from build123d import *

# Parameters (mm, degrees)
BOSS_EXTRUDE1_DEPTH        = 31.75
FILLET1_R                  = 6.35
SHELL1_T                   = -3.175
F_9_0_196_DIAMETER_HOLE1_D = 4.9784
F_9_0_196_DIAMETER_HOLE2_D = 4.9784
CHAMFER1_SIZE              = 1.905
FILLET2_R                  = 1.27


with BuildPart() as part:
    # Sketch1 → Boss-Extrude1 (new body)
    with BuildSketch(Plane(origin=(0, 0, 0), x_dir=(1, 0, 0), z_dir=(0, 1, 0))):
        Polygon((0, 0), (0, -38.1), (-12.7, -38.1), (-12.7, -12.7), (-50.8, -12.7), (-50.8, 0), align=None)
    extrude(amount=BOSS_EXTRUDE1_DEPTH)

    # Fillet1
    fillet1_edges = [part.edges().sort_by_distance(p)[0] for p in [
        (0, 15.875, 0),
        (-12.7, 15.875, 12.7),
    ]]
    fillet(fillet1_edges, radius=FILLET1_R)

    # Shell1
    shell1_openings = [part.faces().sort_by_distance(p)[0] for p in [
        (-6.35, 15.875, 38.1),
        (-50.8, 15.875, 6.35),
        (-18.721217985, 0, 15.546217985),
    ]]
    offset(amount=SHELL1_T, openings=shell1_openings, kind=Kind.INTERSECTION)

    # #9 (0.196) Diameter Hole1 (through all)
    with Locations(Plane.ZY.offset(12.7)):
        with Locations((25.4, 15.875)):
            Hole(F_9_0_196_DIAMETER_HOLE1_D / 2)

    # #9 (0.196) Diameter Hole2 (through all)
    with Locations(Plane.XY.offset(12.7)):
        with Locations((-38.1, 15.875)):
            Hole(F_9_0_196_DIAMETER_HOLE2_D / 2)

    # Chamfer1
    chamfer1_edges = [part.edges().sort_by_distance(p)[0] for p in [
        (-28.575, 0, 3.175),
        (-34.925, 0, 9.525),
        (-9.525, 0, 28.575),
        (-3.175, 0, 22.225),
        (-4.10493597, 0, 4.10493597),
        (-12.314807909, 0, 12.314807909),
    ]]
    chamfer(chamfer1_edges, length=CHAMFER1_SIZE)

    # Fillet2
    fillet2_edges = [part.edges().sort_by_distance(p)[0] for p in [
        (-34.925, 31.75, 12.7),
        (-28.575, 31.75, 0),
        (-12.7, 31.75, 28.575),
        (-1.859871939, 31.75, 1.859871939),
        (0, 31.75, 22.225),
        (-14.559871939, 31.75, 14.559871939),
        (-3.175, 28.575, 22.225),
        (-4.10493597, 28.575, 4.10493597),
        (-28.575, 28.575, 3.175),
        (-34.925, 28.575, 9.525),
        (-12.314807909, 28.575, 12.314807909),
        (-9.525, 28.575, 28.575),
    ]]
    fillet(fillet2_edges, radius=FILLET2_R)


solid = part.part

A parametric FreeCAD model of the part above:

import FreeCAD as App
import Part
import Sketcher

V = App.Vector
Q = App.Units.Quantity


def edges_at(feature, points):
    """Names of the edges that pass closest to the given points."""
    edges = feature.Shape.Edges
    near = lambda p: min(range(len(edges)), key=lambda i: edges[i].distToShape(Part.Vertex(*p))[0])
    return sorted({f"Edge{near(p) + 1}" for p in points})


def faces_at(feature, points):
    """Names of the faces that lie closest to the given points."""
    faces = feature.Shape.Faces
    near = lambda p: min(range(len(faces)), key=lambda i: faces[i].distToShape(Part.Vertex(*p))[0])
    return sorted({f"Face{near(p) + 1}" for p in points})

doc = App.newDocument("Part")
body = doc.addObject("PartDesign::Body", "Body")

sketch1 = body.newObject("Sketcher::SketchObject", "Sketch")
sketch1.AttachmentSupport = (doc.getObject("XZ_Plane"), [""])
sketch1.MapMode = "FlatFace"
sketch1.addGeometry([
    Part.LineSegment(V(0, 38.1, 0), V(0, 0, 0)),
    Part.LineSegment(V(0, 0, 0), V(-50.8, 0, 0)),
    Part.LineSegment(V(-50.8, 0, 0), V(-50.8, 12.7, 0)),
    Part.LineSegment(V(-50.8, 12.7, 0), V(-12.7, 12.7, 0)),
    Part.LineSegment(V(-12.7, 12.7, 0), V(-12.7, 38.1, 0)),
    Part.LineSegment(V(-12.7, 38.1, 0), V(0, 38.1, 0)),
], False)
sketch1.addConstraint([
    Sketcher.Constraint("Coincident", 0, 2, 1, 1),
    Sketcher.Constraint("Coincident", 1, 2, 2, 1),
    Sketcher.Constraint("Coincident", 2, 2, 3, 1),
    Sketcher.Constraint("Coincident", 3, 2, 4, 1),
    Sketcher.Constraint("Coincident", 4, 2, 5, 1),
    Sketcher.Constraint("Coincident", 5, 2, 0, 1),
    Sketcher.Constraint("Vertical", 0),
    Sketcher.Constraint("Horizontal", 1),
    Sketcher.Constraint("Vertical", 2),
    Sketcher.Constraint("Horizontal", 3),
    Sketcher.Constraint("Vertical", 4),
    Sketcher.Constraint("Horizontal", 5),
    Sketcher.Constraint("Coincident", 0, 2, -1, 1),
    Sketcher.Constraint("Equal", 3, 0),
    Sketcher.Constraint("Equal", 5, 2),
    Sketcher.Constraint("DistanceX", 1, 2, 1, 1, Q("2 in")),
    Sketcher.Constraint("DistanceY", 4, 1, 4, 2, Q("1 in")),
])
pad1 = body.newObject("PartDesign::Pad", "Pad")
pad1.Profile = sketch1
pad1.Length = Q("1.25 in")
pad1.Reversed = True
doc.recompute()

fillet = body.newObject("PartDesign::Fillet", "Fillet")
fillet.Base = (pad1, edges_at(pad1, [(0, 15.875, 0), (-12.7, 15.875, 12.7)]))
fillet.Radius = Q("0.25 in")
doc.recompute()

thickness = body.newObject("PartDesign::Thickness", "Thickness")
thickness.Base = (fillet, faces_at(fillet, [(-6.35, 15.875, 38.1), (-50.8, 15.875, 6.35), (-5.08, 0, 19.05)]))
thickness.Value = Q("0.125 in")
thickness.Reversed = True
thickness.Join = "Intersection"

sketch2 = body.newObject("Sketcher::SketchObject", "Sketch001")
sketch2.AttachmentSupport = (doc.getObject("YZ_Plane"), [""])
sketch2.MapMode = "FlatFace"
sketch2.AttachmentOffset = App.Placement(V(0, 0, -0.5 * 25.4), App.Rotation())
sketch2.addGeometry(Part.Circle(V(15.875, 25.4, 0), V(0, 0, 1), 2.4892), False)
sketch2.addConstraint([
    Sketcher.Constraint("Diameter", 0, Q("0.196 in")),
    Sketcher.Constraint("DistanceY", -1, 1, 0, 3, Q("1 in")),
    Sketcher.Constraint("DistanceX", -1, 1, 0, 3, Q("0.625 in")),
])
doc.recompute()
hole = body.newObject("PartDesign::Hole", "Hole")
hole.Profile = sketch2
hole.ThreadType = "None"
hole.Diameter = Q("0.196 in")
hole.DepthType = "ThroughAll"
hole.Reversed = True

sketch3 = body.newObject("Sketcher::SketchObject", "Sketch002")
sketch3.AttachmentSupport = (doc.getObject("XY_Plane"), [""])
sketch3.MapMode = "FlatFace"
sketch3.AttachmentOffset = App.Placement(V(0, 0, 0.5 * 25.4), App.Rotation())
sketch3.addGeometry(Part.Circle(V(-38.1, 15.875, 0), V(0, 0, 1), 2.4892), False)
sketch3.addConstraint([
    Sketcher.Constraint("Diameter", 0, Q("0.196 in")),
    Sketcher.Constraint("DistanceX", 0, 3, -1, 1, Q("1.5 in")),
    Sketcher.Constraint("DistanceY", -1, 1, 0, 3, Q("0.625 in")),
])
doc.recompute()
hole2 = body.newObject("PartDesign::Hole", "Hole001")
hole2.Profile = sketch3
hole2.ThreadType = "None"
hole2.Diameter = Q("0.196 in")
hole2.DepthType = "ThroughAll"
doc.recompute()

chamfer = body.newObject("PartDesign::Chamfer", "Chamfer")
chamfer.Base = (hole2, edges_at(hole2, [
    (-28.575, 0, 3.175),
    (-34.925, 0, 9.525),
    (-9.525, 0, 28.575),
    (-3.175, 0, 22.225),
    (-4.105, 0, 4.105),
    (-12.315, 0, 12.315),
]))
chamfer.Size = Q("0.075 in")
doc.recompute()

fillet2 = body.newObject("PartDesign::Fillet", "Fillet001")
fillet2.Base = (chamfer, edges_at(chamfer, [
    (-34.925, 31.75, 12.7),
    (-28.575, 31.75, 0),
    (-12.7, 31.75, 28.575),
    (-1.86, 31.75, 1.86),
    (0, 31.75, 22.225),
    (-14.56, 31.75, 14.56),
    (-3.175, 28.575, 22.225),
    (-4.105, 28.575, 4.105),
    (-28.575, 28.575, 3.175),
    (-34.925, 28.575, 9.525),
    (-12.315, 28.575, 12.315),
    (-9.525, 28.575, 28.575),
]))
fillet2.Radius = Q("0.05 in")

doc.recompute()
